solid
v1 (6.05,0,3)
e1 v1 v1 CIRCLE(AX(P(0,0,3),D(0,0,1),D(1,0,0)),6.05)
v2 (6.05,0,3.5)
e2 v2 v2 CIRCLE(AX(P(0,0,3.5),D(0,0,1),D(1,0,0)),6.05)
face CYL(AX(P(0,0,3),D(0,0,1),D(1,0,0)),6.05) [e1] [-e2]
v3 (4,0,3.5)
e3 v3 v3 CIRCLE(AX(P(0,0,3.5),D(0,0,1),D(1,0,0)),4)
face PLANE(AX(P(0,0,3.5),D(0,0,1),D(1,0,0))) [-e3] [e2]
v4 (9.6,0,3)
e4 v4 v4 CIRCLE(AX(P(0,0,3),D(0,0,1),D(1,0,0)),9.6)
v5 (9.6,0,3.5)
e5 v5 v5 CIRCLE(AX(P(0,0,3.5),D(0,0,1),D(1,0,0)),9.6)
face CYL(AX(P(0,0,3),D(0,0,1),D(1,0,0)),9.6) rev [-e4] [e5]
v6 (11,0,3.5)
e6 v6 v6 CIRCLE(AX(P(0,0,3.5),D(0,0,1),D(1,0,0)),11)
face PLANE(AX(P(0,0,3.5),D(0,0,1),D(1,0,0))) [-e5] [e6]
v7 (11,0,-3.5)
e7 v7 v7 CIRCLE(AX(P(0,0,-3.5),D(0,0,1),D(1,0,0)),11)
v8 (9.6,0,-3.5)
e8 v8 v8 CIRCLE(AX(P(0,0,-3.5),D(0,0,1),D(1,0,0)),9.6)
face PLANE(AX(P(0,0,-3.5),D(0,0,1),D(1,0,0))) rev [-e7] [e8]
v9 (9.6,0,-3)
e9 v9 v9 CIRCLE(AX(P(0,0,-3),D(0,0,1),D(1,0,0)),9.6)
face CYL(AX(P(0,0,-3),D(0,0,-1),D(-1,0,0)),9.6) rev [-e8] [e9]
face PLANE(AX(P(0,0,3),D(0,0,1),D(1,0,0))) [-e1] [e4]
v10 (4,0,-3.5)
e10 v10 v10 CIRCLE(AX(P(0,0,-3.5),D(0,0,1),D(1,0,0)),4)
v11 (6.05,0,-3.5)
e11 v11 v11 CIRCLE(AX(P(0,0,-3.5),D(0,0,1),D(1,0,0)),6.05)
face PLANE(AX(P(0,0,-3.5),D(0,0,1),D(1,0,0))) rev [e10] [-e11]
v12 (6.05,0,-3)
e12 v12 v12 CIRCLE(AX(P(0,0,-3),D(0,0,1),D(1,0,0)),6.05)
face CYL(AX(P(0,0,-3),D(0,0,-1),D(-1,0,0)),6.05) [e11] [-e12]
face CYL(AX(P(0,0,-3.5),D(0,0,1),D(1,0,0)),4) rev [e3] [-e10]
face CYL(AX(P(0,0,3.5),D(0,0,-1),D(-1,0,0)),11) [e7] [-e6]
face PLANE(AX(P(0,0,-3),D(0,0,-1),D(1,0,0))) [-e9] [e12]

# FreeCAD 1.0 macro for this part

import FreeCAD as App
import Part
import Sketcher

V = App.Vector
Q = App.Units.Quantity

doc = App.newDocument("Part")
body = doc.addObject("PartDesign::Body", "Body")

# Sketch on XY plane
sketch1 = doc.addObject("Sketcher::SketchObject", "Sketch")
body.addObject(sketch1)
sketch1.AttachmentSupport = (doc.XY_Plane, [""])
sketch1.MapMode = "FlatFace"
sketch1.addGeometry(Part.Circle(V(0, 0, 0), V(0, 0, 1), 11), False)
sketch1.addConstraint([
    Sketcher.Constraint("Coincident", 0, 3, -1, 1),
    Sketcher.Constraint("Diameter", 0, Q("22 mm")),
])
pad1 = doc.addObject("PartDesign::Pad", "Pad")
body.addObject(pad1)
pad1.Profile = sketch1
pad1.Length = 7
pad1.Midplane = True

# Sketch on XY plane
sketch2 = doc.addObject("Sketcher::SketchObject", "Sketch001")
body.addObject(sketch2)
sketch2.AttachmentSupport = (doc.XY_Plane, [""])
sketch2.MapMode = "FlatFace"
sketch2.AttachmentOffset = App.Placement(V(0, 0, 3.5), App.Rotation())
sketch2.addGeometry(Part.Circle(V(0, 0, 0), V(0, 0, 1), 4), False)
sketch2.addConstraint([
    Sketcher.Constraint("Coincident", 0, 3, -1, 1),
    Sketcher.Constraint("Diameter", 0, Q("8 mm")),
])
pocket1 = doc.addObject("PartDesign::Pocket", "Pocket")
body.addObject(pocket1)
pocket1.Profile = sketch2
pocket1.Type = "ThroughAll"

# Sketch on XY plane
sketch3 = doc.addObject("Sketcher::SketchObject", "Sketch002")
body.addObject(sketch3)
sketch3.AttachmentSupport = (doc.XY_Plane, [""])
sketch3.MapMode = "FlatFace"
sketch3.AttachmentOffset = App.Placement(V(0, 0, 3.5), App.Rotation())
sketch3.addGeometry([
    Part.Circle(V(0, 0, 0), V(0, 0, 1), 10),
    Part.Circle(V(0, 0, 0), V(0, 0, 1), 6),
], False)
sketch3.addConstraint([
    Sketcher.Constraint("Coincident", 0, 3, -1, 1),
    Sketcher.Constraint("Coincident", 1, 3, -1, 1),
    Sketcher.Constraint("Diameter", 0, Q("19.2 mm")),
    Sketcher.Constraint("Diameter", 1, Q("12.1 mm")),
])
pocket2 = doc.addObject("PartDesign::Pocket", "Pocket001")
body.addObject(pocket2)
pocket2.Profile = sketch3
pocket2.Length = 0.5
doc.recompute()

mirrored = doc.addObject("PartDesign::Mirrored", "Mirrored")
body.addObject(mirrored)
mirrored.Originals = [pocket2]
mirrored.MirrorPlane = (doc.XY_Plane, [""])
body.Tip = mirrored

doc.recompute()
